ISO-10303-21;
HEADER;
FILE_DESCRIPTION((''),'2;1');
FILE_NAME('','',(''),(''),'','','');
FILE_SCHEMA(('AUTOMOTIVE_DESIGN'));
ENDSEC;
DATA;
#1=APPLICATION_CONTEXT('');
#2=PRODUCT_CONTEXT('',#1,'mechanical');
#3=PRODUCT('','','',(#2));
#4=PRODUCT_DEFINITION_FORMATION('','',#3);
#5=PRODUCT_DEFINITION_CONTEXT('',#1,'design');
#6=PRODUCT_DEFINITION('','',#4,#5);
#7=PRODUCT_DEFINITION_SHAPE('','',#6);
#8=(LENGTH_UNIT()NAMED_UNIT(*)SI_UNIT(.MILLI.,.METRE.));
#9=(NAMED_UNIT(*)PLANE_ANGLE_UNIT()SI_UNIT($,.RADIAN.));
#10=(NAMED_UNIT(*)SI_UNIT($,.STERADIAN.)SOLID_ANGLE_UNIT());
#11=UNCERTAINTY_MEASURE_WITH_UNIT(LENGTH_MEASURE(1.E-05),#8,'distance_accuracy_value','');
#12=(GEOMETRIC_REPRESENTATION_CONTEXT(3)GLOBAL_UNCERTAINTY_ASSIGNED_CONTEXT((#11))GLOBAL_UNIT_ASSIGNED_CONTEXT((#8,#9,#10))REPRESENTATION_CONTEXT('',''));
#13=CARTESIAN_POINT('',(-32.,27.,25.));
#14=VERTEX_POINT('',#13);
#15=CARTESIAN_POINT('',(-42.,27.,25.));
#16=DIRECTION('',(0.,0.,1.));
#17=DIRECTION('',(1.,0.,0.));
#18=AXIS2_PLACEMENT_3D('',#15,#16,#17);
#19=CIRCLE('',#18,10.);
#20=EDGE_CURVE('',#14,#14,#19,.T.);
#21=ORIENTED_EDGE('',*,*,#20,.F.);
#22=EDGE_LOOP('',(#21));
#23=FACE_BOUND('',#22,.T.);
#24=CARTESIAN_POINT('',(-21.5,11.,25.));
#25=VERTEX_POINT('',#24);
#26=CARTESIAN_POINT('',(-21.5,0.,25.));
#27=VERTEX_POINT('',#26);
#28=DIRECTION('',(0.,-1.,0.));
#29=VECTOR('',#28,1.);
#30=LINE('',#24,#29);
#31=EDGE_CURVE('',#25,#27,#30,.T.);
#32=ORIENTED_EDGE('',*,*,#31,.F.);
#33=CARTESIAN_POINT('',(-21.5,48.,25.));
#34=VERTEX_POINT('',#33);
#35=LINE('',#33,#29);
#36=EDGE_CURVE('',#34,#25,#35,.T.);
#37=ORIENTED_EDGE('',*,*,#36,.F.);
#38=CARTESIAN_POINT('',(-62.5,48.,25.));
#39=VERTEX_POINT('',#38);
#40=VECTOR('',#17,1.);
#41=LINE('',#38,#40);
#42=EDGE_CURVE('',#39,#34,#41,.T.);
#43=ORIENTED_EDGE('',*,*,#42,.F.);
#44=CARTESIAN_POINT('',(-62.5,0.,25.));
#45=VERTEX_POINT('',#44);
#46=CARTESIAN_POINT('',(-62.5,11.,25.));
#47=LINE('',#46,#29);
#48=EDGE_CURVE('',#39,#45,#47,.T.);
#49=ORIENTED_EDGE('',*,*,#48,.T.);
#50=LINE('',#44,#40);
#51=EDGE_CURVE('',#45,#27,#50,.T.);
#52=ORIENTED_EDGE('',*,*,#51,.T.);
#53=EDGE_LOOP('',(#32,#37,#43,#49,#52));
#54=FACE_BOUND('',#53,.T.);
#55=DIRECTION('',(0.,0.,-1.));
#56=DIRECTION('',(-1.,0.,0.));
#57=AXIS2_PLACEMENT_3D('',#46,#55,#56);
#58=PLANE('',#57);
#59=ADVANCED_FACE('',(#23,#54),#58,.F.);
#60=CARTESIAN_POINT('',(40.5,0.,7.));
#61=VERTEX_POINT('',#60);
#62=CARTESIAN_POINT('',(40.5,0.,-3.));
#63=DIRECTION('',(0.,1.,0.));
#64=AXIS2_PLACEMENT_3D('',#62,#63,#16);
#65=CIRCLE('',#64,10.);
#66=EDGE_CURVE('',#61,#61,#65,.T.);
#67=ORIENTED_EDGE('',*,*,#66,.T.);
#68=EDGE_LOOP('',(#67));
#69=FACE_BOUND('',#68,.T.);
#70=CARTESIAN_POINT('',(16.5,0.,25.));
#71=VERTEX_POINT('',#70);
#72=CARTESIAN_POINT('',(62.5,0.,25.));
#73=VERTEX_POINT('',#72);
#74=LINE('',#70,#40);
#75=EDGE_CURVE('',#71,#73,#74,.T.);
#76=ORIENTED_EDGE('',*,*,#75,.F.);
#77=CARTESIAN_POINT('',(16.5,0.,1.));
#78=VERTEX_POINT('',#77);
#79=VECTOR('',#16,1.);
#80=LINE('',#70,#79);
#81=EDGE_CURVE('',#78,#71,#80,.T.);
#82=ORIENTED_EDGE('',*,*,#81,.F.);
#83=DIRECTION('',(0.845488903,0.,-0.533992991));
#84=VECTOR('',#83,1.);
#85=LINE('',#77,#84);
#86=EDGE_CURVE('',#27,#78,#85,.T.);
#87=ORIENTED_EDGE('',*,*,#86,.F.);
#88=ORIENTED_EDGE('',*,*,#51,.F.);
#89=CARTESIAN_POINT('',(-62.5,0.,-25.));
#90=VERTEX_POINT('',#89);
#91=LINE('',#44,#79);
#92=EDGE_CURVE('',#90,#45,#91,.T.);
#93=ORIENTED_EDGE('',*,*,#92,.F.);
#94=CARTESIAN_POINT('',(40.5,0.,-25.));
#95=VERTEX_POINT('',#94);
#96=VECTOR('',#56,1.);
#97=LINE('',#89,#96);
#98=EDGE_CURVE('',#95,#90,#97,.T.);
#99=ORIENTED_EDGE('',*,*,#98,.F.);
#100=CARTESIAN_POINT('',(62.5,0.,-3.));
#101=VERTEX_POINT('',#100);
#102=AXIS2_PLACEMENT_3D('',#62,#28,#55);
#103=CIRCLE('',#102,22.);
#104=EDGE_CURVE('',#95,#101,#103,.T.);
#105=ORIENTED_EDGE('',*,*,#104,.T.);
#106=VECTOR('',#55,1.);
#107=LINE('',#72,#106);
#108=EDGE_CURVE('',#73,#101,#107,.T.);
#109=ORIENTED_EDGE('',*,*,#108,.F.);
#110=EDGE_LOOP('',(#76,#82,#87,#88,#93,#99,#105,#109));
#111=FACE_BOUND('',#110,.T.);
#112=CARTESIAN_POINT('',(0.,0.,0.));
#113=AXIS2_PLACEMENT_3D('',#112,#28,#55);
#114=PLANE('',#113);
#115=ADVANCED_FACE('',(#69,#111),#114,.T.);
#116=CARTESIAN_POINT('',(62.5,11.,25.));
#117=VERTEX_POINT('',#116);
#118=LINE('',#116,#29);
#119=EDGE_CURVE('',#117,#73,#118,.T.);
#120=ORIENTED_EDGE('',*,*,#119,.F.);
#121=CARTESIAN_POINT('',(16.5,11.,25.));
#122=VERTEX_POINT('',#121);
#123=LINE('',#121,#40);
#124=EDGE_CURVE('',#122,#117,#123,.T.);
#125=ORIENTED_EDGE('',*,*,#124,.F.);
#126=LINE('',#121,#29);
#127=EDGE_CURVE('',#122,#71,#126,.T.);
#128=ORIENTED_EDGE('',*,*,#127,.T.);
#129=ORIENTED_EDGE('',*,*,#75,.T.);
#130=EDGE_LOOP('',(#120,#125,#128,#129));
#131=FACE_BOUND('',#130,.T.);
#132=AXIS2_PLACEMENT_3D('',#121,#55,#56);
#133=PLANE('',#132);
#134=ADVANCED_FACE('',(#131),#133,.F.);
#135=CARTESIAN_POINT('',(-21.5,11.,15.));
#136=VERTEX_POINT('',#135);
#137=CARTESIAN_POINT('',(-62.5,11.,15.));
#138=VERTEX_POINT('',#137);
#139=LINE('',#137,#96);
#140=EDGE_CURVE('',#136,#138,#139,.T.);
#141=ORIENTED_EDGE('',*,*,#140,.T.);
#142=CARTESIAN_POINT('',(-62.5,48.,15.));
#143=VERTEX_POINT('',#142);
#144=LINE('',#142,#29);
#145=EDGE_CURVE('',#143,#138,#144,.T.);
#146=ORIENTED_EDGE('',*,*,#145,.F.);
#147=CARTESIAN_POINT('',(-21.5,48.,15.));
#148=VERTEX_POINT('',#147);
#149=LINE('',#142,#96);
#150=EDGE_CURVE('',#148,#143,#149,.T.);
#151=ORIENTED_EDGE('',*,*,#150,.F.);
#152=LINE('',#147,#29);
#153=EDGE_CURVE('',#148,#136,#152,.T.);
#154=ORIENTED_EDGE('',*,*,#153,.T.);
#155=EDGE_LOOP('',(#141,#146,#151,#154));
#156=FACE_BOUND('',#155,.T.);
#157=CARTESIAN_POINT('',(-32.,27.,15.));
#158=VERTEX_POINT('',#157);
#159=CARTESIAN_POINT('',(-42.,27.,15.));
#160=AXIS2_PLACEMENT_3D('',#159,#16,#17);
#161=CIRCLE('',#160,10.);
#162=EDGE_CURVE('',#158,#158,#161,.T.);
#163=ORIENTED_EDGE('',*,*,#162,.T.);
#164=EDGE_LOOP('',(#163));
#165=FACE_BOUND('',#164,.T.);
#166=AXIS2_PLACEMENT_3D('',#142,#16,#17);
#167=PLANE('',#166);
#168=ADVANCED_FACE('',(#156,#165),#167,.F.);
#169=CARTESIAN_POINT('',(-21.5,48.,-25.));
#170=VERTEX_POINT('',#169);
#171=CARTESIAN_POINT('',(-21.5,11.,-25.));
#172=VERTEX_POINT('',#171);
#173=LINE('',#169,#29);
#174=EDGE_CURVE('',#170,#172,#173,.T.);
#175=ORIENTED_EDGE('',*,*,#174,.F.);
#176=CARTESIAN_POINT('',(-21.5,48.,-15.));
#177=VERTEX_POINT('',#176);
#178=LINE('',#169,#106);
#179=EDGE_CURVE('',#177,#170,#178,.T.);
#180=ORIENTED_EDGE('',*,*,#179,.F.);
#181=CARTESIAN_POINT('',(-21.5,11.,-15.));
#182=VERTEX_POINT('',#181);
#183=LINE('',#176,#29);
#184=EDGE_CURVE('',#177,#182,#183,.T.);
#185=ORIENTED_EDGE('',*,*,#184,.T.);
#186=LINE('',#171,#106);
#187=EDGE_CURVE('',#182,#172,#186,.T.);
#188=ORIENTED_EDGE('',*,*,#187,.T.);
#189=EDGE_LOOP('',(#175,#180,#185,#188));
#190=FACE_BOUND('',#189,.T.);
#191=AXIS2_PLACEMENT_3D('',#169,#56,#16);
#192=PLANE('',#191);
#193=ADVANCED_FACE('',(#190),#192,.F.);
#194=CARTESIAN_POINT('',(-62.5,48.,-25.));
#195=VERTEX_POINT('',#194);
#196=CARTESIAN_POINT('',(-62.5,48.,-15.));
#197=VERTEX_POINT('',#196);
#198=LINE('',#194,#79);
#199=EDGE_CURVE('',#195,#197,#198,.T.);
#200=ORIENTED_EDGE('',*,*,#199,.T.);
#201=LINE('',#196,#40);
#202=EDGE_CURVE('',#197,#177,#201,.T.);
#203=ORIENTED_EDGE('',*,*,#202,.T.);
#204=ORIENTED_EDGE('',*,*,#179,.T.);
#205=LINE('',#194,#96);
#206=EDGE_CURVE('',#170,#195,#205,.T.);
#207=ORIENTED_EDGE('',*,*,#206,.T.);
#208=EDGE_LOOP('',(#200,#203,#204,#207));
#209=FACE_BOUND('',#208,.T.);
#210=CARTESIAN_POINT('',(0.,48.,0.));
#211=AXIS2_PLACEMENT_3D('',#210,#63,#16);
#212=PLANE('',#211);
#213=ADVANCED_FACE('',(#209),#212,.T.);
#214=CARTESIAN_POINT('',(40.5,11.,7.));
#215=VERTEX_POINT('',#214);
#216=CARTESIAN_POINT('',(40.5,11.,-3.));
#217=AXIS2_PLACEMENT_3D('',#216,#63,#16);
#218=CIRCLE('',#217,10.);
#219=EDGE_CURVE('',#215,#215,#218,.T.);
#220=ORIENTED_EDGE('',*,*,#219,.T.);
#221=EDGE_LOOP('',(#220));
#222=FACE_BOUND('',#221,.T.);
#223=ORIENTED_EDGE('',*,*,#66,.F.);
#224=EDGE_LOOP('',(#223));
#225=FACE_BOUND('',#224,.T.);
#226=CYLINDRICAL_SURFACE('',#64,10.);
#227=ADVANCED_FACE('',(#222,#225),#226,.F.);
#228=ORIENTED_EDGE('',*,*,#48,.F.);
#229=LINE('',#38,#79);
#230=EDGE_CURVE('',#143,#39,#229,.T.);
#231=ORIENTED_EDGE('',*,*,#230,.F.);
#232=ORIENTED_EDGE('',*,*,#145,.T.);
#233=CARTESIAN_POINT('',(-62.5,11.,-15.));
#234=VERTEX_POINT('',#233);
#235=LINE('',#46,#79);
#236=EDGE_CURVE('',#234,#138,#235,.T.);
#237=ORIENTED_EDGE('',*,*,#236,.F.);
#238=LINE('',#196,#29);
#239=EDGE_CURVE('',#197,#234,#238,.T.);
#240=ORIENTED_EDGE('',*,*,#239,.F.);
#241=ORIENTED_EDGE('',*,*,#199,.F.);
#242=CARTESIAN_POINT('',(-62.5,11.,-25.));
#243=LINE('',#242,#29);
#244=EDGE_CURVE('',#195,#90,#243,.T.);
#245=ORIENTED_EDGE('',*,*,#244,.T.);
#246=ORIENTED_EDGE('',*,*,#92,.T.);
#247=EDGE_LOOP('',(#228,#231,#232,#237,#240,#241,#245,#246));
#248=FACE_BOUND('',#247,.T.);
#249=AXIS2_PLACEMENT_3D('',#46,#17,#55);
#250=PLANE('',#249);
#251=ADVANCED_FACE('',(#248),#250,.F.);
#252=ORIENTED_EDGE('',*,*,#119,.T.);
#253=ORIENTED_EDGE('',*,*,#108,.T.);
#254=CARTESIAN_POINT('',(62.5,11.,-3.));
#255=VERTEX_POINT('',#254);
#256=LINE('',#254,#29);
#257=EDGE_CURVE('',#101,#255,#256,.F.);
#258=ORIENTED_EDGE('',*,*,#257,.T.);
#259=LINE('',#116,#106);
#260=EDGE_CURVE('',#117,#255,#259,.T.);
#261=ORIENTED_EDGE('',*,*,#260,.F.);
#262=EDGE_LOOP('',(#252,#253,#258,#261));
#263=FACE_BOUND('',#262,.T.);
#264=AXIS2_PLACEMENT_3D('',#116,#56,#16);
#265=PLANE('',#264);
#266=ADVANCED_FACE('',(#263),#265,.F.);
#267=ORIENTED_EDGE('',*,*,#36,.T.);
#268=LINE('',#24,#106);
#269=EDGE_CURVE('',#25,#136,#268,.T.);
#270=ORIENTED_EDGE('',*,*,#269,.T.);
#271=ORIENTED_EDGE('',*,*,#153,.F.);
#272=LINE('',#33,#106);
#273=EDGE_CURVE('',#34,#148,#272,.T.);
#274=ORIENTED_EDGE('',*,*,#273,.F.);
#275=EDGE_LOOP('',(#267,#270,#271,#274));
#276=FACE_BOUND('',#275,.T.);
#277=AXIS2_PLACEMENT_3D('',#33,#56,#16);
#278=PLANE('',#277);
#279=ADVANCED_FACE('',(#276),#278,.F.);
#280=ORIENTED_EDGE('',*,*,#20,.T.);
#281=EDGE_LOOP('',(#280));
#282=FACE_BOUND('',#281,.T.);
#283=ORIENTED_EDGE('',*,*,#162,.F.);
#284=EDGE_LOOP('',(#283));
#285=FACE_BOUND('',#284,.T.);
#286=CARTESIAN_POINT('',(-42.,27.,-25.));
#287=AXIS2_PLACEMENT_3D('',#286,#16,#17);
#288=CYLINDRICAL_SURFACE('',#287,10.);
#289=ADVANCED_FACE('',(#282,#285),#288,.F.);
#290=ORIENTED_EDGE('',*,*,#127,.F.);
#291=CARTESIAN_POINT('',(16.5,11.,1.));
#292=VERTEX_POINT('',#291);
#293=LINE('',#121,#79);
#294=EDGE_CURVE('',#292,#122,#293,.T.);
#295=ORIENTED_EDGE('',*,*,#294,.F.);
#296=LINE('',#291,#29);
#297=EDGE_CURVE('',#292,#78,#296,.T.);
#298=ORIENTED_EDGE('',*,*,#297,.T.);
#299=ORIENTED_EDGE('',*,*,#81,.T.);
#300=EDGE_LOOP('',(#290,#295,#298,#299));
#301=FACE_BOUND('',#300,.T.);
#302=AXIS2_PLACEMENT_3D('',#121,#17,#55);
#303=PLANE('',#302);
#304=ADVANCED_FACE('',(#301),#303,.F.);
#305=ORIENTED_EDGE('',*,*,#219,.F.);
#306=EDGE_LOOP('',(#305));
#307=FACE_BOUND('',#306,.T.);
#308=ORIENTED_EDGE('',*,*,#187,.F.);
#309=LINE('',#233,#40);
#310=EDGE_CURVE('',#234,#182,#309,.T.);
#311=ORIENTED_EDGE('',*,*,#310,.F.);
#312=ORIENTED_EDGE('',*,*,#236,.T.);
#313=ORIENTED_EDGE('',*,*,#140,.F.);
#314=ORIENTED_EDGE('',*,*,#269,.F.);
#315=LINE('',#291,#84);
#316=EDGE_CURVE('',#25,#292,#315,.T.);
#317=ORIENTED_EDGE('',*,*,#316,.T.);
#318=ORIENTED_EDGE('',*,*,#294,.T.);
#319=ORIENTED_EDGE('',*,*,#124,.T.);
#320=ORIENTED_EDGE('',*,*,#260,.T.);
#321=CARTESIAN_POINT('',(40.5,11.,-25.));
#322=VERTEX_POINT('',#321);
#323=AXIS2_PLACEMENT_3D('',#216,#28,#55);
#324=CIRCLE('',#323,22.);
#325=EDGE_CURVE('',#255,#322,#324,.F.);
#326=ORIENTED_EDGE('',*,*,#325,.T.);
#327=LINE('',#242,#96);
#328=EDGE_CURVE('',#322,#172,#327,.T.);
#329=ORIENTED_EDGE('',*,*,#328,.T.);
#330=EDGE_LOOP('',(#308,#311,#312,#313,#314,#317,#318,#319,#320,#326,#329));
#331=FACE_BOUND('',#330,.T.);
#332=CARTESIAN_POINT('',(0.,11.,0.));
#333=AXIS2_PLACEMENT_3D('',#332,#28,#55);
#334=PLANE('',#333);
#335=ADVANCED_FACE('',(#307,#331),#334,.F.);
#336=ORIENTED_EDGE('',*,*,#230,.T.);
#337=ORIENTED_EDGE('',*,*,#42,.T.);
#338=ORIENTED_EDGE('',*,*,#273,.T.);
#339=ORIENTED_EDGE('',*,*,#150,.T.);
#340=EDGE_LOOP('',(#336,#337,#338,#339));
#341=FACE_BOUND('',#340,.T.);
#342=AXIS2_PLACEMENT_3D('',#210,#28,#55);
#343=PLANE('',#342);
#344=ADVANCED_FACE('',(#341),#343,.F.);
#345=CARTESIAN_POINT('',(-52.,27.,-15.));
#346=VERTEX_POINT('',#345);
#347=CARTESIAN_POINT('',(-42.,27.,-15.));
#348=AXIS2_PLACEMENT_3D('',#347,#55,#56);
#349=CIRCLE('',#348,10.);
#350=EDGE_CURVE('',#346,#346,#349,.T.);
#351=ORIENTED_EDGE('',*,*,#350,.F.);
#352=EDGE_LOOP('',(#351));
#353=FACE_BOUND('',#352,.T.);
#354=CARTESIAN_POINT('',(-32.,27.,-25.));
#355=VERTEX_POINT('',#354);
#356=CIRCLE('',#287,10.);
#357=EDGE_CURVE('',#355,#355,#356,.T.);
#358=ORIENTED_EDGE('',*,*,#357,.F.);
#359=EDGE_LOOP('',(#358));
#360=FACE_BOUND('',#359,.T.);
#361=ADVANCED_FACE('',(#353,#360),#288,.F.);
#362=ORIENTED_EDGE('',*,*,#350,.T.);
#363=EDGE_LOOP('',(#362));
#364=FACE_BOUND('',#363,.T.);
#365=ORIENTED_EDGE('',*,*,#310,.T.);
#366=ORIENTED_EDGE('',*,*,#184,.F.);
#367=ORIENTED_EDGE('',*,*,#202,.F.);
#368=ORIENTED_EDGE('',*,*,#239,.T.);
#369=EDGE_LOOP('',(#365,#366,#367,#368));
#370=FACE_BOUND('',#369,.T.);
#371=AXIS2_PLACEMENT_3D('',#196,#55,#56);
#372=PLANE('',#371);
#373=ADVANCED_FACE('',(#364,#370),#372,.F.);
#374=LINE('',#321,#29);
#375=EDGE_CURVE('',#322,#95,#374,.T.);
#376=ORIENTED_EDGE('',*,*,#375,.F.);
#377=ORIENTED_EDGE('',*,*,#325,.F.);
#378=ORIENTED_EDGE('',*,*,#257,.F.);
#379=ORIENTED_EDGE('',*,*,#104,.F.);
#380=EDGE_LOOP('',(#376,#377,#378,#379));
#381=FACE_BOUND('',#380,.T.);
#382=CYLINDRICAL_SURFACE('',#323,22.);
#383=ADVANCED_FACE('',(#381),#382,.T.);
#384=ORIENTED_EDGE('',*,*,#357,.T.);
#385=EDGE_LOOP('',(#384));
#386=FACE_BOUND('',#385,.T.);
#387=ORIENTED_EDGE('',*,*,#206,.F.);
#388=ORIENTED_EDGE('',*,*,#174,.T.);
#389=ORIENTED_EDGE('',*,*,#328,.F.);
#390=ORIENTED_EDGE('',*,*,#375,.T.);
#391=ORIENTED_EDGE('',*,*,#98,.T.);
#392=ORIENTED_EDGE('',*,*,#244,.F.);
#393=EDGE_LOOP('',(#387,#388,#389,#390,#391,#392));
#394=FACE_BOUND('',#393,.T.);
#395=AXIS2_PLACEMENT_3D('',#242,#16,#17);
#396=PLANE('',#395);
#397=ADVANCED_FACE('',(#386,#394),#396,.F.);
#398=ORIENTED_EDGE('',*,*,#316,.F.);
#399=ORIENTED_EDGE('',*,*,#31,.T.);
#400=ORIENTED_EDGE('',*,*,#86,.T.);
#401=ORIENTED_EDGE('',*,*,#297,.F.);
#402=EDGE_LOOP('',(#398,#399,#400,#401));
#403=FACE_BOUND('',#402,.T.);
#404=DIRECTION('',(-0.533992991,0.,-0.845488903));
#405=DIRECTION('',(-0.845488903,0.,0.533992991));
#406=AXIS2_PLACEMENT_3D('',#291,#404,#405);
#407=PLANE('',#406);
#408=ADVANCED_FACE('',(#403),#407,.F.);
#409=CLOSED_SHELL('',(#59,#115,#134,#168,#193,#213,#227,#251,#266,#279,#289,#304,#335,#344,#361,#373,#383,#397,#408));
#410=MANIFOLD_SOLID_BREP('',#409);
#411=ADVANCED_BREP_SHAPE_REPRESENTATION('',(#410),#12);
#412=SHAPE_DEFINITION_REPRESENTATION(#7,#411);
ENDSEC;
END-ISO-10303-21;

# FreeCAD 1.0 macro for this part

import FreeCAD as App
import Part
import Sketcher


def edges_at(feature, points):
    """Names of the edges that pass closest to the given points."""
    edges = feature.Shape.Edges
    near = lambda p: min(range(len(edges)), key=lambda i: edges[i].distToShape(Part.Vertex(*p))[0])
    return sorted({f"Edge{near(p) + 1}" for p in points})


def add_polygon(sketch, points):
    """Adds a closed chain of lines whose ends are joined by coincident constraints."""
    first, n = sketch.GeometryCount, len(points)
    for a, b in zip(points, points[1:] + points[:1]):
        sketch.addGeometry(Part.LineSegment(App.Vector(*a, 0), App.Vector(*b, 0)), False)
    for i in range(n):
        sketch.addConstraint(Sketcher.Constraint("Coincident", first + i, 2, first + (i + 1) % n, 1))

doc = App.newDocument("Part")
body = doc.addObject("PartDesign::Body", "Body")

# Sketch on XZ plane
sketch1 = body.newObject("Sketcher::SketchObject", "Sketch")
sketch1.AttachmentSupport = (doc.getObject("XZ_Plane"), [""])
sketch1.MapMode = "FlatFace"
add_polygon(sketch1, [(16.5, 25), (62.5, 25), (62.5, -25), (-62.5, -25), (-62.5, 25), (-21.5, 25), (16.5, 1)])  # lines 0-6
sketch1.addConstraint(Sketcher.Constraint("Horizontal", 0))
sketch1.addConstraint(Sketcher.Constraint("Vertical", 1))
sketch1.addConstraint(Sketcher.Constraint("Horizontal", 2))
sketch1.addConstraint(Sketcher.Constraint("Vertical", 3))
sketch1.addConstraint(Sketcher.Constraint("Horizontal", 4))
sketch1.addConstraint(Sketcher.Constraint("Vertical", 6))
sketch1.addConstraint(Sketcher.Constraint("Symmetric", 0, 2, 2, 2, -1, 1))
sketch1.addConstraint(Sketcher.Constraint("Horizontal", 0, 2, 3, 2))
sketch1.addConstraint(Sketcher.Constraint("DistanceX", 0, 1, 0, 2, 46.0))
sketch1.addConstraint(Sketcher.Constraint("DistanceX", 2, 2, 2, 1, 125.0))
sketch1.addConstraint(Sketcher.Constraint("DistanceX", 4, 1, 4, 2, 41.0))
sketch1.addConstraint(Sketcher.Constraint("DistanceY", 1, 2, 1, 1, 50.0))
sketch1.addConstraint(Sketcher.Constraint("DistanceY", 6, 1, 6, 2, 24.0))
pad1 = body.newObject("PartDesign::Pad", "Pad")
pad1.Profile = sketch1
pad1.Length = 11
pad1.Reversed = True

# Sketch on XZ plane
sketch2 = body.newObject("Sketcher::SketchObject", "Sketch001")
sketch2.AttachmentSupport = (doc.getObject("XZ_Plane"), [""])
sketch2.MapMode = "FlatFace"
sketch2.AttachmentOffset = App.Placement(App.Vector(0, 0, -11), App.Rotation())
sketch2.addGeometry(Part.Circle(App.Vector(40.5, -3, 0), App.Vector(0, 0, 1), 10), False)
sketch2.addConstraint(Sketcher.Constraint("Diameter", 0, 20.0))
sketch2.addConstraint(Sketcher.Constraint("DistanceY", 0, 3, -1, 1, 3.0))
sketch2.addConstraint(Sketcher.Constraint("DistanceX", -1, 1, 0, 3, 40.5))
pocket1 = body.newObject("PartDesign::Pocket", "Pocket")
pocket1.Profile = sketch2
pocket1.Type = "ThroughAll"
pocket1.Reversed = True

# Sketch on XZ plane
sketch3 = body.newObject("Sketcher::SketchObject", "Sketch002")
sketch3.AttachmentSupport = (doc.getObject("XZ_Plane"), [""])
sketch3.MapMode = "FlatFace"
sketch3.AttachmentOffset = App.Placement(App.Vector(0, 0, -11), App.Rotation())
add_polygon(sketch3, [(-62.5, -25), (-62.5, -15), (-21.5, -15), (-21.5, -25)])  # lines 0-3
add_polygon(sketch3, [(-62.5, 15), (-62.5, 25), (-21.5, 25), (-21.5, 15)])  # lines 4-7
sketch3.addConstraint(Sketcher.Constraint("Vertical", 0))
sketch3.addConstraint(Sketcher.Constraint("Horizontal", 1))
sketch3.addConstraint(Sketcher.Constraint("Vertical", 2))
sketch3.addConstraint(Sketcher.Constraint("Horizontal", 3))
sketch3.addConstraint(Sketcher.Constraint("Vertical", 4))
sketch3.addConstraint(Sketcher.Constraint("Horizontal", 5))
sketch3.addConstraint(Sketcher.Constraint("Vertical", 6))
sketch3.addConstraint(Sketcher.Constraint("Horizontal", 7))
sketch3.addConstraint(Sketcher.Constraint("Symmetric", 3, 2, 4, 2, -1))
sketch3.addConstraint(Sketcher.Constraint("Symmetric", 1, 2, 6, 2, -1))
sketch3.addConstraint(Sketcher.Constraint("DistanceX", 1, 1, 1, 2, 41.0))
sketch3.addConstraint(Sketcher.Constraint("DistanceY", 0, 1, 0, 2, 10.0))
sketch3.addConstraint(Sketcher.Constraint("DistanceY", 0, 2, -1, 1, 15.0))
sketch3.addConstraint(Sketcher.Constraint("DistanceX", 0, 2, -1, 1, 62.5))
pad2 = body.newObject("PartDesign::Pad", "Pad001")
pad2.Profile = sketch3
pad2.Length = 37
pad2.Reversed = True

# Sketch on XY plane
sketch4 = body.newObject("Sketcher::SketchObject", "Sketch003")
sketch4.AttachmentSupport = (doc.getObject("XY_Plane"), [""])
sketch4.MapMode = "FlatFace"
sketch4.AttachmentOffset = App.Placement(App.Vector(0, 0, 25), App.Rotation())
sketch4.addGeometry(Part.Circle(App.Vector(-42, 27, 0), App.Vector(0, 0, 1), 10), False)
sketch4.addConstraint(Sketcher.Constraint("Diameter", 0, 20.0))
sketch4.addConstraint(Sketcher.Constraint("DistanceX", 0, 3, -1, 1, 42.0))
sketch4.addConstraint(Sketcher.Constraint("DistanceY", -1, 1, 0, 3, 27.0))
pocket2 = body.newObject("PartDesign::Pocket", "Pocket001")
pocket2.Profile = sketch4
pocket2.Type = "ThroughAll"
doc.recompute()

fillet = body.newObject("PartDesign::Fillet", "Fillet")
fillet.Base = (pocket2, edges_at(pocket2, [(62.5, 5.5, -25)]))
fillet.Radius = 22

doc.recompute()
